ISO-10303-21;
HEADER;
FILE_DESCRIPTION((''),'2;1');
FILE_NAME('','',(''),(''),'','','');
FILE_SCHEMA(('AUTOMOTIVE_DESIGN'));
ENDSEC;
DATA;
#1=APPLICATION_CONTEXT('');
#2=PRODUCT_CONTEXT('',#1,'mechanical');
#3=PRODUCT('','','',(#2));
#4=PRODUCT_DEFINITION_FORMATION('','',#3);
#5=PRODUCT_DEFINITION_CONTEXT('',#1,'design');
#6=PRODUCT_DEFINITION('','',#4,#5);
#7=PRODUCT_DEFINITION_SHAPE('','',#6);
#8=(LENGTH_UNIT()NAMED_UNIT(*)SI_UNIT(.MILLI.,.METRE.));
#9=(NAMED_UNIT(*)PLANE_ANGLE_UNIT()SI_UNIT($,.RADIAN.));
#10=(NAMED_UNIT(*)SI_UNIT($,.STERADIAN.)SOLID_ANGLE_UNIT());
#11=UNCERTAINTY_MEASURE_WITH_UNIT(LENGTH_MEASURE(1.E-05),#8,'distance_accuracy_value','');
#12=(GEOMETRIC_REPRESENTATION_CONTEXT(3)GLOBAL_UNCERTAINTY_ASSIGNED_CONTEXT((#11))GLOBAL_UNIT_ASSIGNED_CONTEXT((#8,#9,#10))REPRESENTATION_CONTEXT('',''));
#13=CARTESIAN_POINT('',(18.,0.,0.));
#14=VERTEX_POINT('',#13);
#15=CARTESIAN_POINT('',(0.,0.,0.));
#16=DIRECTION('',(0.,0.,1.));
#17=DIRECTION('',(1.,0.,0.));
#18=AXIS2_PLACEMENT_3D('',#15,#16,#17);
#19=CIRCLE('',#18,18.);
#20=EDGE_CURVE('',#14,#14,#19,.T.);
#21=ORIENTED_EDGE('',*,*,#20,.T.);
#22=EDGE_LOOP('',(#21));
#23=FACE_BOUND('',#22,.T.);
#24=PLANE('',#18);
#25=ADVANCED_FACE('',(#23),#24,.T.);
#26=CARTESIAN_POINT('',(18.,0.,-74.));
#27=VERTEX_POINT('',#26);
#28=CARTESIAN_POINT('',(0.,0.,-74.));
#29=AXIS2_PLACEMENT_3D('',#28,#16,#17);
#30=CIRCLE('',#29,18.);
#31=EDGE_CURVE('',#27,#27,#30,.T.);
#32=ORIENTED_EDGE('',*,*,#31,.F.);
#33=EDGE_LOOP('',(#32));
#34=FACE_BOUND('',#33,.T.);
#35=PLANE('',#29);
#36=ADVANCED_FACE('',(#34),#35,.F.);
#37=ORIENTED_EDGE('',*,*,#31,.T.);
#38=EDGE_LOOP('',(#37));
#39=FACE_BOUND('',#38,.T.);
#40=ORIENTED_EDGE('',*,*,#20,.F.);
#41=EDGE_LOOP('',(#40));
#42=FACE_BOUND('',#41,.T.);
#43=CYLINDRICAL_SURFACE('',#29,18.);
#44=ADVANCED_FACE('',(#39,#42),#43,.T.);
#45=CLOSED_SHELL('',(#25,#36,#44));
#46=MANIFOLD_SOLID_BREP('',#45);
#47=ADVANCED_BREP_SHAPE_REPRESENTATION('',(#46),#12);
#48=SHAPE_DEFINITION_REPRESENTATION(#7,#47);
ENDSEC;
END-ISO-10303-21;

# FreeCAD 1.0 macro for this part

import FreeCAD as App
import Part
import Sketcher
from FreeCAD import Vector
Q = App.Units.Quantity

doc = App.newDocument("Part")
body = doc.addObject("PartDesign::Body", "Body")

sketch1 = body.newObject("Sketcher::SketchObject", "Sketch")
sketch1.AttachmentSupport = (doc.getObject("XY_Plane"), [""])
sketch1.MapMode = "FlatFace"
sketch1.addGeometry(Part.Circle(Vector(0, 0, 0), Vector(0, 0, 1), 18), False)
sketch1.addConstraint(Sketcher.Constraint("Coincident", 0, 3, -1, 1))
sketch1.addConstraint(Sketcher.Constraint("Diameter", 0, Q("36 mm")))
pad1 = body.newObject("PartDesign::Pad", "Pad")
pad1.Profile = sketch1
pad1.Length = 74
pad1.Reversed = True

doc.recompute()
